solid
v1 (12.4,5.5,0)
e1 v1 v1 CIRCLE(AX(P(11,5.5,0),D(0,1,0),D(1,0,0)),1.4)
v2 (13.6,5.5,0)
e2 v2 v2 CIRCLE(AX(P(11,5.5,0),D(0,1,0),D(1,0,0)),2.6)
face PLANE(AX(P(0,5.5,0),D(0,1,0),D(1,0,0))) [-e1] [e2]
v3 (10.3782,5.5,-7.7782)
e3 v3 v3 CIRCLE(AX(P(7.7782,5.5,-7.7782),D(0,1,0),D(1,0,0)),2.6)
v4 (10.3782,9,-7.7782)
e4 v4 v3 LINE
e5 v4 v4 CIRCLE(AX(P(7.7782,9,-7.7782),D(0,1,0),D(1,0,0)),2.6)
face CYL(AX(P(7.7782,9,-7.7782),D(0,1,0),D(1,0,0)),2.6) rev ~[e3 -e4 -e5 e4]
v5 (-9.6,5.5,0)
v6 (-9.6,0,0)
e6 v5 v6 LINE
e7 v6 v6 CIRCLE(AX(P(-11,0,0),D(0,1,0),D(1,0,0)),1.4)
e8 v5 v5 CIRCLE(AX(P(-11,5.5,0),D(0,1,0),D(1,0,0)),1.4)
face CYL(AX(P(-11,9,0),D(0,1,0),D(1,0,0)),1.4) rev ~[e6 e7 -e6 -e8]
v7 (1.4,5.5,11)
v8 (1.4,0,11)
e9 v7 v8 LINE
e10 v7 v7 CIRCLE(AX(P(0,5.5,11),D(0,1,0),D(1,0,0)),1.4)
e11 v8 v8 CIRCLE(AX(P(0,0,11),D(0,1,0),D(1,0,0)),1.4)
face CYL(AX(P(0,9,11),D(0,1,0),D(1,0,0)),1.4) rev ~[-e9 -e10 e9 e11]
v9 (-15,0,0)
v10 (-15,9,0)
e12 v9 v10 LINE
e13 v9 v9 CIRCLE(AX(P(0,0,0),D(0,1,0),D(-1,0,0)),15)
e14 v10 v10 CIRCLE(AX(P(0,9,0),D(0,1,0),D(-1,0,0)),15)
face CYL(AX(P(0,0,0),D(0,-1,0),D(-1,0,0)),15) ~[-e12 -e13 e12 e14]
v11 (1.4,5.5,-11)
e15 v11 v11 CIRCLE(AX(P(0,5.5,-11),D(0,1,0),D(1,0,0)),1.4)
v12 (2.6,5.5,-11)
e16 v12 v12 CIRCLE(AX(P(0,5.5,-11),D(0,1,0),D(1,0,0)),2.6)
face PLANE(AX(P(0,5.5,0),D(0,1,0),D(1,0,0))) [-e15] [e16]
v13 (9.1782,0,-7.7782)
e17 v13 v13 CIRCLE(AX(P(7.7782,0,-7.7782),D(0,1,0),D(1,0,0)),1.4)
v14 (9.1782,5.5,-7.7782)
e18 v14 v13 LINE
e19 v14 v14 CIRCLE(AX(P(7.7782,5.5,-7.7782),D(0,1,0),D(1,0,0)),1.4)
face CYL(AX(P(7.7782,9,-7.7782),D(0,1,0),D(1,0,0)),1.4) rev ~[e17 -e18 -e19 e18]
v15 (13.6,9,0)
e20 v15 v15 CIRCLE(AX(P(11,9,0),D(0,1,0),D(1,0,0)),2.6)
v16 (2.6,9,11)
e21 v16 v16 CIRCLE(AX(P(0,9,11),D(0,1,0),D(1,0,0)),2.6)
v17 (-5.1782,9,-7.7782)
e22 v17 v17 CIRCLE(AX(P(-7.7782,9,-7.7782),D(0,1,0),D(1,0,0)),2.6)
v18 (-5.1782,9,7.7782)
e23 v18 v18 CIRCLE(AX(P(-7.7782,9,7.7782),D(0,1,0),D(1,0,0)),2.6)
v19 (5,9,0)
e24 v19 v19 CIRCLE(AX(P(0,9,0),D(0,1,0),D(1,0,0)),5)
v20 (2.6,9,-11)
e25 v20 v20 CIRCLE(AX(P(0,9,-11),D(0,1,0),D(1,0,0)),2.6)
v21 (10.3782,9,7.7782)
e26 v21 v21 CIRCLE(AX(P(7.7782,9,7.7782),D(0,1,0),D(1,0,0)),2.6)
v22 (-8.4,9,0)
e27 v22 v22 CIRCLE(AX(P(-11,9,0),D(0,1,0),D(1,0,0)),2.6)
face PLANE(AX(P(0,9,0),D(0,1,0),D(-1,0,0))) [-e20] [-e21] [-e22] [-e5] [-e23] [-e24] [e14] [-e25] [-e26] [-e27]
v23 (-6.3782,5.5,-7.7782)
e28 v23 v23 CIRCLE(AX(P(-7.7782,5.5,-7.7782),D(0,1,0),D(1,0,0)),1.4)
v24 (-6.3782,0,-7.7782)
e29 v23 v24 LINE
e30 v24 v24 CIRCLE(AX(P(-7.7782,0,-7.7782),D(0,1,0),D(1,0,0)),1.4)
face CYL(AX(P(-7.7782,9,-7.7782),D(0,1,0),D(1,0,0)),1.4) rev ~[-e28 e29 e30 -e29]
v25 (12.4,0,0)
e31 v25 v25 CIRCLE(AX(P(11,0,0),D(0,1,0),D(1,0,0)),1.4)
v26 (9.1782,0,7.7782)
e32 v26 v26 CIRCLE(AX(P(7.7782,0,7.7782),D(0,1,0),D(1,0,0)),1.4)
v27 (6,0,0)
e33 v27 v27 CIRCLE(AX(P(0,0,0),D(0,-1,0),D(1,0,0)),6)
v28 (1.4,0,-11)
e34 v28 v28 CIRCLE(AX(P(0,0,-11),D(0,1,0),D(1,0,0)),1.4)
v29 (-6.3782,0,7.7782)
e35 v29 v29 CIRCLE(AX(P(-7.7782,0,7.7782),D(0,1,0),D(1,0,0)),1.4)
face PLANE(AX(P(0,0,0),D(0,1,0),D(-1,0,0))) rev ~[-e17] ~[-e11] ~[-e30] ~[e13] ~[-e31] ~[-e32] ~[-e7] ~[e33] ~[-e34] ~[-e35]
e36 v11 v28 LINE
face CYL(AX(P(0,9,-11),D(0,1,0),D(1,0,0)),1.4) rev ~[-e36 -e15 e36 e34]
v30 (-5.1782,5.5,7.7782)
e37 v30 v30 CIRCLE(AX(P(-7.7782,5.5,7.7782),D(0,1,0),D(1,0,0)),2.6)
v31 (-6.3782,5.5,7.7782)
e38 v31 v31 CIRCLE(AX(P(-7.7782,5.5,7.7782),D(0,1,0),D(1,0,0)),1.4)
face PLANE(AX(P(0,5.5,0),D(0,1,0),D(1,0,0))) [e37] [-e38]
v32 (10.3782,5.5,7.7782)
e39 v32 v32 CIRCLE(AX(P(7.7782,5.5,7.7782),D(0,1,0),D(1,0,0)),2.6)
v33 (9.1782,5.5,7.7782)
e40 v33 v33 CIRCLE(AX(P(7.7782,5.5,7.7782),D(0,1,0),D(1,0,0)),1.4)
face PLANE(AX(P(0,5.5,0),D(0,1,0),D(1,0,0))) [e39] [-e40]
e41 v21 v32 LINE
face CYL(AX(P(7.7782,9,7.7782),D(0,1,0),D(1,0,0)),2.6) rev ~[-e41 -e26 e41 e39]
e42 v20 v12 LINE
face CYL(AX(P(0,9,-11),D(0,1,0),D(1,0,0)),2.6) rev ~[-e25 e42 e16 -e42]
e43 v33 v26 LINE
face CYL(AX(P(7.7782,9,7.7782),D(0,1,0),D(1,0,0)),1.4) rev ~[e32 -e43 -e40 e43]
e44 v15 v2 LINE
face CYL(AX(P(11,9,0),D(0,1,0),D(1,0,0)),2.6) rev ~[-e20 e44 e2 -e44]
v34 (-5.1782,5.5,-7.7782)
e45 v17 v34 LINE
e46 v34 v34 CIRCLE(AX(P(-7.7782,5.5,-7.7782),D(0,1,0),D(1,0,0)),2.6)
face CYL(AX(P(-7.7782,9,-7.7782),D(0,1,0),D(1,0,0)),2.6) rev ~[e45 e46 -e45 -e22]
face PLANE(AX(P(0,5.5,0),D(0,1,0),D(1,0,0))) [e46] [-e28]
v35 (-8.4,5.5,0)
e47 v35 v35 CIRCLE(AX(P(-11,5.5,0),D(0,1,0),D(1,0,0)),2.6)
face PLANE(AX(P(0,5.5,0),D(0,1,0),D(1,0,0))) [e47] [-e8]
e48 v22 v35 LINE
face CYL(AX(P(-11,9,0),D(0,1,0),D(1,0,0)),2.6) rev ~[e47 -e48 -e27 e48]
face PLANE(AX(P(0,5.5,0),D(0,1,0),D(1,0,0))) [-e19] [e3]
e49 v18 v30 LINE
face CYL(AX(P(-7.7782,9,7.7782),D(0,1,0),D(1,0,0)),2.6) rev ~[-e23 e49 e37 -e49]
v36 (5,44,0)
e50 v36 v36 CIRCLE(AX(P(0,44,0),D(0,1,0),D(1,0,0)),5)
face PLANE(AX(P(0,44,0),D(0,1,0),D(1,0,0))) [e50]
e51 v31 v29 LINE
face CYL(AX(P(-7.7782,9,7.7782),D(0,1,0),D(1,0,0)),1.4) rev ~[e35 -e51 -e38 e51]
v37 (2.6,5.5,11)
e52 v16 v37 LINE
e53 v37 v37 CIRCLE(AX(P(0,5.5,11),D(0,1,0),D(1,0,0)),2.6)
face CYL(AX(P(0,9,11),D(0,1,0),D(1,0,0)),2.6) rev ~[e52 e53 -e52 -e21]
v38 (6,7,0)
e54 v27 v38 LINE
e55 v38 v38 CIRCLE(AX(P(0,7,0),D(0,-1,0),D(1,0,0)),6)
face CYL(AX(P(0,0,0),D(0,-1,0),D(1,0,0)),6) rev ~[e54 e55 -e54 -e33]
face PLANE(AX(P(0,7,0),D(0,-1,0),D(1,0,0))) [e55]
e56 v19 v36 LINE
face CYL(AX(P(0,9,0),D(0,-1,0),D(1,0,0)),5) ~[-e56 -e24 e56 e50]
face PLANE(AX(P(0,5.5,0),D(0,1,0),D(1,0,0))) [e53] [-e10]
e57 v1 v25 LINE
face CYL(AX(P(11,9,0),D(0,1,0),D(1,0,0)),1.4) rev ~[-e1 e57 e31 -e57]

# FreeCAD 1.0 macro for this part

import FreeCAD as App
import Part
import Sketcher
Q = App.Units.Quantity

doc = App.newDocument("Part")
params = doc.addObject("Spreadsheet::Sheet", "Params")
for row, (alias, value) in enumerate([
    ("sketch1_diameter", "30 mm"),
    ("pad1_length", "9 mm"),
    ("sketch2_diameter", "2.8 mm"),
    ("sketch3_diameter", "5.2 mm"),
    ("sketch3_diameter2", "2.8 mm"),
    ("pocket2_length", "3.5 mm"),
    ("sketch4_diameter", "12 mm"),
    ("pocket3_length", "7 mm"),
    ("sketch5_diameter", "10 mm"),
    ("pad2_length", "35 mm"),
], start=1):
    params.set(f"A{row}", alias)
    params.set(f"B{row}", "=" + value)
    params.setAlias(f"B{row}", alias)

body = doc.addObject("PartDesign::Body", "Body")

# Sketch on XZ plane
sketch1 = body.newObject("Sketcher::SketchObject", "Sketch")
sketch1.AttachmentSupport = (doc.getObject("XZ_Plane"), [""])
sketch1.MapMode = "FlatFace"
sketch1.addGeometry(Part.Circle(App.Vector(0, 0, 0), App.Vector(0, 0, 1), 15), False)
sketch1.addConstraint([
    Sketcher.Constraint("Coincident", 0, 3, -1, 1),
    Sketcher.Constraint("Diameter", 0, Q("30 mm")),
])
sketch1.setExpression("Constraints[1]", "Params.sketch1_diameter")
pad1 = body.newObject("PartDesign::Pad", "Pad")
pad1.Profile = sketch1
pad1.setExpression("Length", "Params.pad1_length")
pad1.Reversed = True

# Sketch on XZ plane
sketch2 = body.newObject("Sketcher::SketchObject", "Sketch001")
sketch2.AttachmentSupport = (doc.getObject("XZ_Plane"), [""])
sketch2.MapMode = "FlatFace"
sketch2.AttachmentOffset = App.Placement(App.Vector(0, 0, -9), App.Rotation())
sketch2.addGeometry([
    Part.Circle(App.Vector(-11, 0, 0), App.Vector(0, 0, 1), 1.4),  # 0
    Part.Circle(App.Vector(-7.7782, -7.7782, 0), App.Vector(0, 0, 1), 1.4),  # 1
    Part.Circle(App.Vector(-7.7782, 7.7782, 0), App.Vector(0, 0, 1), 1.4),  # 2
    Part.Circle(App.Vector(0, 11, 0), App.Vector(0, 0, 1), 1.4),  # 3
    Part.Circle(App.Vector(7.7782, 7.7782, 0), App.Vector(0, 0, 1), 1.4),  # 4
    Part.Circle(App.Vector(11, 0, 0), App.Vector(0, 0, 1), 1.4),  # 5
    Part.Circle(App.Vector(7.7782, -7.7782, 0), App.Vector(0, 0, 1), 1.4),  # 6
    Part.Circle(App.Vector(0, -11, 0), App.Vector(0, 0, 1), 1.4),  # 7
], False)
sketch2.addConstraint([
    Sketcher.Constraint("Equal", 0, 1),
    Sketcher.Constraint("Equal", 1, 2),
    Sketcher.Constraint("Equal", 2, 3),
    Sketcher.Constraint("Equal", 3, 4),
    Sketcher.Constraint("Equal", 4, 5),
    Sketcher.Constraint("Equal", 5, 6),
    Sketcher.Constraint("Equal", 6, 7),
    Sketcher.Constraint("Symmetric", 1, 3, 4, 3, -1, 1),
    Sketcher.Constraint("Symmetric", 0, 3, 5, 3, -1, 1),
    Sketcher.Constraint("Symmetric", 2, 3, 6, 3, -1, 1),
    Sketcher.Constraint("Symmetric", 3, 3, 7, 3, -1, 1),
    Sketcher.Constraint("Symmetric", 2, 3, 4, 3, -2),
    Sketcher.Constraint("PointOnObject", 0, 3, -1),
    Sketcher.Constraint("PointOnObject", 3, 3, -2),
    Sketcher.Constraint("Diameter", 0, Q("2.8 mm")),
    Sketcher.Constraint("DistanceX", 0, 3, 5, 3, Q("22 mm")),
    Sketcher.Constraint("DistanceY", -1, 1, 3, 3, Q("11 mm")),
    Sketcher.Constraint("DistanceX", 1, 3, -1, 1, Q("7.7782 mm")),
    Sketcher.Constraint("DistanceY", 1, 3, -1, 1, Q("7.7782 mm")),
])
sketch2.setExpression("Constraints[14]", "Params.sketch2_diameter")
pocket1 = body.newObject("PartDesign::Pocket", "Pocket")
pocket1.Profile = sketch2
pocket1.Type = "UpToFirst"
pocket1.Reversed = True

# Sketch on XZ plane
sketch3 = body.newObject("Sketcher::SketchObject", "Sketch002")
sketch3.AttachmentSupport = (doc.getObject("XZ_Plane"), [""])
sketch3.MapMode = "FlatFace"
sketch3.AttachmentOffset = App.Placement(App.Vector(0, 0, -9), App.Rotation())
sketch3.addGeometry([
    Part.Circle(App.Vector(-11, 0, 0), App.Vector(0, 0, 1), 2.6),  # 0
    Part.Circle(App.Vector(-7.7782, -7.7782, 0), App.Vector(0, 0, 1), 2.6),  # 1
    Part.Circle(App.Vector(-7.7782, -7.7782, 0), App.Vector(0, 0, 1), 1.4),  # 2
    Part.Circle(App.Vector(0, -11, 0), App.Vector(0, 0, 1), 2.6),  # 3
    Part.Circle(App.Vector(7.7782, -7.7782, 0), App.Vector(0, 0, 1), 2.6),  # 4
    Part.Circle(App.Vector(11, 0, 0), App.Vector(0, 0, 1), 2.6),  # 5
    Part.Circle(App.Vector(7.7782, 7.7782, 0), App.Vector(0, 0, 1), 2.6),  # 6
    Part.Circle(App.Vector(7.7782, 7.7782, 0), App.Vector(0, 0, 1), 1.4),  # 7
    Part.Circle(App.Vector(0, 11, 0), App.Vector(0, 0, 1), 2.6),  # 8
    Part.Circle(App.Vector(0, 11, 0), App.Vector(0, 0, 1), 1.4),  # 9
    Part.Circle(App.Vector(-7.7782, 7.7782, 0), App.Vector(0, 0, 1), 2.6),  # 10
], False)
sketch3.addConstraint([
    Sketcher.Constraint("Coincident", 2, 3, 1, 3),
    Sketcher.Constraint("Coincident", 7, 3, 6, 3),
    Sketcher.Constraint("Coincident", 9, 3, 8, 3),
    Sketcher.Constraint("Equal", 0, 1),
    Sketcher.Constraint("Equal", 1, 3),
    Sketcher.Constraint("Equal", 3, 4),
    Sketcher.Constraint("Equal", 4, 5),
    Sketcher.Constraint("Equal", 5, 6),
    Sketcher.Constraint("Equal", 2, 7),
    Sketcher.Constraint("Equal", 6, 8),
    Sketcher.Constraint("Equal", 7, 9),
    Sketcher.Constraint("Equal", 8, 10),
    Sketcher.Constraint("Symmetric", 0, 3, 5, 3, -1, 1),
    Sketcher.Constraint("Symmetric", 1, 3, 6, 3, -1, 1),
    Sketcher.Constraint("Symmetric", 3, 3, 8, 3, -1, 1),
    Sketcher.Constraint("Symmetric", 4, 3, 10, 3, -1, 1),
    Sketcher.Constraint("Symmetric", 1, 3, 4, 3, -2),
    Sketcher.Constraint("PointOnObject", 0, 3, -1),
    Sketcher.Constraint("PointOnObject", 3, 3, -2),
    Sketcher.Constraint("Diameter", 0, Q("5.2 mm")),
    Sketcher.Constraint("Diameter", 2, Q("2.8 mm")),
    Sketcher.Constraint("DistanceX", 0, 3, -1, 1, Q("11 mm")),
    Sketcher.Constraint("DistanceY", 3, 3, -1, 1, Q("11 mm")),
    Sketcher.Constraint("DistanceX", 1, 3, -1, 1, Q("7.7782 mm")),
    Sketcher.Constraint("DistanceY", 1, 3, -1, 1, Q("7.7782 mm")),
])
sketch3.setExpression("Constraints[19]", "Params.sketch3_diameter")
sketch3.setExpression("Constraints[20]", "Params.sketch3_diameter2")
pocket2 = body.newObject("PartDesign::Pocket", "Pocket001")
pocket2.Profile = sketch3
pocket2.setExpression("Length", "Params.pocket2_length")
pocket2.Reversed = True

# Sketch on XZ plane
sketch4 = body.newObject("Sketcher::SketchObject", "Sketch003")
sketch4.AttachmentSupport = (doc.getObject("XZ_Plane"), [""])
sketch4.MapMode = "FlatFace"
sketch4.addGeometry(Part.Circle(App.Vector(0, 0, 0), App.Vector(0, 0, 1), 6), False)
sketch4.addConstraint([
    Sketcher.Constraint("Coincident", 0, 3, -1, 1),
    Sketcher.Constraint("Diameter", 0, Q("12 mm")),
])
sketch4.setExpression("Constraints[1]", "Params.sketch4_diameter")
pocket3 = body.newObject("PartDesign::Pocket", "Pocket002")
pocket3.Profile = sketch4
pocket3.setExpression("Length", "Params.pocket3_length")

# Sketch on XZ plane
sketch5 = body.newObject("Sketcher::SketchObject", "Sketch004")
sketch5.AttachmentSupport = (doc.getObject("XZ_Plane"), [""])
sketch5.MapMode = "FlatFace"
sketch5.AttachmentOffset = App.Placement(App.Vector(0, 0, -9), App.Rotation())
sketch5.addGeometry(Part.Circle(App.Vector(0, 0, 0), App.Vector(0, 0, 1), 5), False)
sketch5.addConstraint([
    Sketcher.Constraint("Coincident", 0, 3, -1, 1),
    Sketcher.Constraint("Diameter", 0, Q("10 mm")),
])
sketch5.setExpression("Constraints[1]", "Params.sketch5_diameter")
pad2 = body.newObject("PartDesign::Pad", "Pad001")
pad2.Profile = sketch5
pad2.setExpression("Length", "Params.pad2_length")
pad2.Reversed = True

doc.recompute()
